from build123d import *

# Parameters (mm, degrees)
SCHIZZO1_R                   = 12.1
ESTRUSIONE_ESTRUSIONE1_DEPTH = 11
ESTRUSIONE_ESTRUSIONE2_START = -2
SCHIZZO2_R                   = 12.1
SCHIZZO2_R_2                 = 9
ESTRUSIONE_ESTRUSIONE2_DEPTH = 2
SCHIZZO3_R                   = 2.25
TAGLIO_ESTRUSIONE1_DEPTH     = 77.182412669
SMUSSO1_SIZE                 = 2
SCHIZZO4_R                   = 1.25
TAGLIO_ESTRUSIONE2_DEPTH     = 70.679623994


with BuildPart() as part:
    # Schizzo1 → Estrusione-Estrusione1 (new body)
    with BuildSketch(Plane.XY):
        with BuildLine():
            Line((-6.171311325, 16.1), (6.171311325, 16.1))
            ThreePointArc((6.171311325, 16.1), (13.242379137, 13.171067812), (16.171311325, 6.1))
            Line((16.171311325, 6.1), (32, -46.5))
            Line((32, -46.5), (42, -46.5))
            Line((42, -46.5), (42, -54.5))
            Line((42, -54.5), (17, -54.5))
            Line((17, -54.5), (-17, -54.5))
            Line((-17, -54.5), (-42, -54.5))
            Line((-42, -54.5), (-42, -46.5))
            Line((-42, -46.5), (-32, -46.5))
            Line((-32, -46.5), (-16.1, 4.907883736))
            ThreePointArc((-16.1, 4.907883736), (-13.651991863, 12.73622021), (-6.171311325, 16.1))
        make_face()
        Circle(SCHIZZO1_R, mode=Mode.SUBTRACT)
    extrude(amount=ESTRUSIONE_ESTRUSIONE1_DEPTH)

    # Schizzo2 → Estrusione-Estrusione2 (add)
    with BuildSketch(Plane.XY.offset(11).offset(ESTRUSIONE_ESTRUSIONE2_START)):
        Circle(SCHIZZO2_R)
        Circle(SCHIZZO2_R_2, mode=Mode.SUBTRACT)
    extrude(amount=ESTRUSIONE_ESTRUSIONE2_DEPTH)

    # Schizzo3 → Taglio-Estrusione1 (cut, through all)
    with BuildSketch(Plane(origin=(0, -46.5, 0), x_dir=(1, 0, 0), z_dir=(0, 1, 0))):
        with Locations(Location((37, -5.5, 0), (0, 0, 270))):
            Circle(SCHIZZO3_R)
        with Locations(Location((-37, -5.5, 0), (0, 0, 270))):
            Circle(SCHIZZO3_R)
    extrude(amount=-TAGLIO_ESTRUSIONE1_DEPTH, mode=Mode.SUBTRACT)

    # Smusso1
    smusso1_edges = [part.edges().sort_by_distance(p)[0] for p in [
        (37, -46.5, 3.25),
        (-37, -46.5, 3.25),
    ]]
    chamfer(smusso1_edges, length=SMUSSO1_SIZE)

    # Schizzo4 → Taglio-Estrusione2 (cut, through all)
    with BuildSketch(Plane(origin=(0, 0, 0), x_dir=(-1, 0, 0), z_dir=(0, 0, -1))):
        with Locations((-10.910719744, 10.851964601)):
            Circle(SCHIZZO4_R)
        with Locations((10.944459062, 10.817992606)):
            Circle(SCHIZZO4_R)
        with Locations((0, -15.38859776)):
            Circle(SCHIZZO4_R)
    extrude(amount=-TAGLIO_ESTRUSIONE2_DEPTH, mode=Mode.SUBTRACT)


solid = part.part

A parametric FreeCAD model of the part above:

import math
import FreeCAD as App
import Part
import Sketcher
from FreeCAD import Vector


def edges_at(feature, points):
    """Names of the edges that pass closest to the given points."""
    edges = feature.Shape.Edges
    near = lambda p: min(range(len(edges)), key=lambda i: edges[i].distToShape(Part.Vertex(*p))[0])
    return sorted({f"Edge{near(p) + 1}" for p in points})

doc = App.newDocument("Part")
body = doc.addObject("PartDesign::Body", "Body")

# Sketch on XY plane
sketch1 = body.newObject("Sketcher::SketchObject", "Sketch")
sketch1.AttachmentSupport = (doc.getObject("XY_Plane"), [""])
sketch1.MapMode = "FlatFace"
sketch1.addGeometry([
    Part.LineSegment(Vector(6, 16, 0), Vector(-6, 16, 0)),  # 0
    Part.ArcOfCircle(Part.Circle(Vector(-6, 6, 0), Vector(0, 0, 1), 10), math.radians(90), math.radians(187)),  # 1
    Part.LineSegment(Vector(-16, 5, 0), Vector(-32, -46, 0)),  # 2
    Part.LineSegment(Vector(-32, -46, 0), Vector(-42, -46, 0)),  # 3
    Part.LineSegment(Vector(-42, -46, 0), Vector(-42, -54, 0)),  # 4
    Part.LineSegment(Vector(-42, -54, 0), Vector(42, -54, 0)),  # 5
    Part.LineSegment(Vector(42, -54, 0), Vector(42, -46, 0)),  # 6
    Part.LineSegment(Vector(42, -46, 0), Vector(32, -46, 0)),  # 7
    Part.LineSegment(Vector(32, -46, 0), Vector(16, 6, 0)),  # 8
    Part.ArcOfCircle(Part.Circle(Vector(6, 6, 0), Vector(0, 0, 1), 10), math.radians(0), math.radians(90)),  # 9
    Part.Circle(Vector(0, 0, 0), Vector(0, 0, 1), 12),  # 10
], False)
sketch1.addConstraint([
    Sketcher.Constraint("Tangent", 0, 2, 1, 1),
    Sketcher.Constraint("Coincident", 1, 2, 2, 1),
    Sketcher.Constraint("Coincident", 2, 2, 3, 1),
    Sketcher.Constraint("Coincident", 3, 2, 4, 1),
    Sketcher.Constraint("Coincident", 4, 2, 5, 1),
    Sketcher.Constraint("Coincident", 5, 2, 6, 1),
    Sketcher.Constraint("Coincident", 6, 2, 7, 1),
    Sketcher.Constraint("Coincident", 7, 2, 8, 1),
    Sketcher.Constraint("Coincident", 8, 2, 9, 1),
    Sketcher.Constraint("Tangent", 9, 2, 0, 1),
    Sketcher.Constraint("Horizontal", 0),
    Sketcher.Constraint("Horizontal", 3),
    Sketcher.Constraint("Vertical", 4),
    Sketcher.Constraint("Horizontal", 5),
    Sketcher.Constraint("Vertical", 6),
    Sketcher.Constraint("Horizontal", 7),
    Sketcher.Constraint("Coincident", 10, 3, -1, 1),
    Sketcher.Constraint("Equal", 1, 9),
    Sketcher.Constraint("Symmetric", 3, 2, 6, 2, -2),
    Sketcher.Constraint("Horizontal", 9, 3, 8, 2),
    Sketcher.Constraint("Equal", 3, 7),
    Sketcher.Constraint("Radius", 1, 10.0),
    Sketcher.Constraint("Diameter", 10, 24.2),
    Sketcher.Constraint("DistanceX", 3, 2, 3, 1, 10.0),
    Sketcher.Constraint("DistanceX", 5, 1, 5, 2, 84.0),
    Sketcher.Constraint("DistanceY", 4, 2, 4, 1, 8.0),
    Sketcher.Constraint("DistanceY", -1, 1, 1, 3, 6.1),
    Sketcher.Constraint("DistanceX", 1, 2, -1, 1, 16.1),
    Sketcher.Constraint("DistanceY", 2, 2, -1, 1, 46.5),
    Sketcher.Constraint("Distance", 2, 53.810598),
    Sketcher.Constraint("DistanceX", 0, 2, 0, 1, 12.342623),
])
pad1 = body.newObject("PartDesign::Pad", "Pad")
pad1.Profile = sketch1
pad1.Length = 11

# Sketch on XY plane
sketch2 = body.newObject("Sketcher::SketchObject", "Sketch001")
sketch2.AttachmentSupport = (doc.getObject("XY_Plane"), [""])
sketch2.MapMode = "FlatFace"
sketch2.AttachmentOffset = App.Placement(Vector(0, 0, 9), App.Rotation())
sketch2.addGeometry([
    Part.Circle(Vector(0, 0, 0), Vector(0, 0, 1), 12),
    Part.Circle(Vector(0, 0, 0), Vector(0, 0, 1), 9),
], False)
sketch2.addConstraint([
    Sketcher.Constraint("Coincident", 0, 3, -1, 1),
    Sketcher.Constraint("Coincident", 1, 3, -1, 1),
    Sketcher.Constraint("Diameter", 1, 18.0),
    Sketcher.Constraint("Diameter", 0, 24.2),
])
pad2 = body.newObject("PartDesign::Pad", "Pad001")
pad2.Profile = sketch2
pad2.Length = 2

# Sketch on XZ plane
sketch3 = body.newObject("Sketcher::SketchObject", "Sketch002")
sketch3.AttachmentSupport = (doc.getObject("XZ_Plane"), [""])
sketch3.MapMode = "FlatFace"
sketch3.AttachmentOffset = App.Placement(Vector(0, 0, 46.5), App.Rotation())
sketch3.addGeometry([
    Part.Circle(Vector(37, 5.5, 0), Vector(0, 0, 1), 2.2),
    Part.Circle(Vector(-37, 5.5, 0), Vector(0, 0, 1), 2.2),
], False)
sketch3.addConstraint([
    Sketcher.Constraint("Equal", 0, 1),
    Sketcher.Constraint("Symmetric", 0, 3, 1, 3, -2),
    Sketcher.Constraint("Diameter", 0, 4.5),
    Sketcher.Constraint("DistanceX", -1, 1, 0, 3, 37.0),
    Sketcher.Constraint("DistanceY", -1, 1, 0, 3, 5.5),
])
pocket1 = body.newObject("PartDesign::Pocket", "Pocket")
pocket1.Profile = sketch3
pocket1.Type = "ThroughAll"
pocket1.Reversed = True
doc.recompute()

chamfer = body.newObject("PartDesign::Chamfer", "Chamfer")
chamfer.Base = (pocket1, edges_at(pocket1, [(37, -46.5, 3.25), (-37, -46.5, 3.25)]))
chamfer.Size = 2

# Sketch on XY plane
sketch4 = body.newObject("Sketcher::SketchObject", "Sketch003")
sketch4.AttachmentSupport = (doc.getObject("XY_Plane"), [""])
sketch4.MapMode = "FlatFace"
sketch4.addGeometry([
    Part.Circle(Vector(10.9, 10.9, 0), Vector(0, 0, 1), 1.2),
    Part.Circle(Vector(-10.9, 10.8, 0), Vector(0, 0, 1), 1.2),
    Part.Circle(Vector(0, -15.4, 0), Vector(0, 0, 1), 1.2),
], False)
sketch4.addConstraint([
    Sketcher.Constraint("Equal", 0, 1),
    Sketcher.Constraint("Equal", 1, 2),
    Sketcher.Constraint("PointOnObject", 2, 3, -2),
    Sketcher.Constraint("Diameter", 0, 2.5),
    Sketcher.Constraint("DistanceX", -1, 1, 0, 3, 10.91072),
    Sketcher.Constraint("DistanceX", 1, 3, -1, 1, 10.944459),
    Sketcher.Constraint("DistanceY", 1, 3, 0, 3, 0.033972),
    Sketcher.Constraint("DistanceY", 2, 3, 1, 3, 26.20659),
    Sketcher.Constraint("DistanceY", -1, 1, 0, 3, 10.851965),
])
pocket2 = body.newObject("PartDesign::Pocket", "Pocket001")
pocket2.Profile = sketch4
pocket2.Type = "ThroughAll"
pocket2.Reversed = True

doc.recompute()
